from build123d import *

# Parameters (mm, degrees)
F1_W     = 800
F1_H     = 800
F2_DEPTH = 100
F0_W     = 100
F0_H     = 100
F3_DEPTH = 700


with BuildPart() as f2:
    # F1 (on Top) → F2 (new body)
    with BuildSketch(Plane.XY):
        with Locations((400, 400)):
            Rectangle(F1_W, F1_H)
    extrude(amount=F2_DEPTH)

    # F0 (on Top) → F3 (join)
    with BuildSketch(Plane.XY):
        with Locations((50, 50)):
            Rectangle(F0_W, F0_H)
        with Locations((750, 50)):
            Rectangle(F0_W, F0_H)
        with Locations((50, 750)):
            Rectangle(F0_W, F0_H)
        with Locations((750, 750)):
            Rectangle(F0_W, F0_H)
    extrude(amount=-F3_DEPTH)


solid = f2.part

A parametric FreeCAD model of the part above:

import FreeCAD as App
import Part
import Sketcher

V = App.Vector

doc = App.newDocument("Part")
body = doc.addObject("PartDesign::Body", "Body")

# Sketch on XY plane
sketch1 = body.newObject("Sketcher::SketchObject", "Sketch")
sketch1.AttachmentSupport = (doc.getObject("XY_Plane"), [""])
sketch1.MapMode = "FlatFace"
sketch1.addGeometry(Part.LineSegment(V(0, 800, 0), V(0, 0, 0)), False)
sketch1.addGeometry(Part.LineSegment(V(0, 0, 0), V(800, 0, 0)), False)
sketch1.addGeometry(Part.LineSegment(V(800, 0, 0), V(800, 800, 0)), False)
sketch1.addGeometry(Part.LineSegment(V(800, 800, 0), V(0, 800, 0)), False)
sketch1.addConstraint(Sketcher.Constraint("Coincident", 0, 2, 1, 1))
sketch1.addConstraint(Sketcher.Constraint("Coincident", 1, 2, 2, 1))
sketch1.addConstraint(Sketcher.Constraint("Coincident", 2, 2, 3, 1))
sketch1.addConstraint(Sketcher.Constraint("Coincident", 3, 2, 0, 1))
sketch1.addConstraint(Sketcher.Constraint("Vertical", 0))
sketch1.addConstraint(Sketcher.Constraint("Horizontal", 1))
sketch1.addConstraint(Sketcher.Constraint("Vertical", 2))
sketch1.addConstraint(Sketcher.Constraint("Horizontal", 3))
sketch1.addConstraint(Sketcher.Constraint("Coincident", 0, 2, -1, 1))
sketch1.addConstraint(Sketcher.Constraint("Equal", 3, 0))
sketch1.addConstraint(Sketcher.Constraint("DistanceX", 1, 1, 1, 2, 800.0))
pad1 = body.newObject("PartDesign::Pad", "Pad")
pad1.Profile = sketch1
pad1.Length = 100

# Sketch on XY plane
sketch2 = body.newObject("Sketcher::SketchObject", "Sketch001")
sketch2.AttachmentSupport = (doc.getObject("XY_Plane"), [""])
sketch2.MapMode = "FlatFace"
sketch2.addGeometry(Part.LineSegment(V(0, 100, 0), V(0, 0, 0)), False)
sketch2.addGeometry(Part.LineSegment(V(0, 0, 0), V(100, 0, 0)), False)
sketch2.addGeometry(Part.LineSegment(V(100, 0, 0), V(100, 100, 0)), False)
sketch2.addGeometry(Part.LineSegment(V(100, 100, 0), V(0, 100, 0)), False)
sketch2.addGeometry(Part.LineSegment(V(700, 100, 0), V(700, 0, 0)), False)
sketch2.addGeometry(Part.LineSegment(V(700, 0, 0), V(800, 0, 0)), False)
sketch2.addGeometry(Part.LineSegment(V(800, 0, 0), V(800, 100, 0)), False)
sketch2.addGeometry(Part.LineSegment(V(800, 100, 0), V(700, 100, 0)), False)
sketch2.addGeometry(Part.LineSegment(V(0, 800, 0), V(0, 700, 0)), False)
sketch2.addGeometry(Part.LineSegment(V(0, 700, 0), V(100, 700, 0)), False)
sketch2.addGeometry(Part.LineSegment(V(100, 700, 0), V(100, 800, 0)), False)
sketch2.addGeometry(Part.LineSegment(V(100, 800, 0), V(0, 800, 0)), False)
sketch2.addGeometry(Part.LineSegment(V(700, 800, 0), V(700, 700, 0)), False)
sketch2.addGeometry(Part.LineSegment(V(700, 700, 0), V(800, 700, 0)), False)
sketch2.addGeometry(Part.LineSegment(V(800, 700, 0), V(800, 800, 0)), False)
sketch2.addGeometry(Part.LineSegment(V(800, 800, 0), V(700, 800, 0)), False)
sketch2.addConstraint(Sketcher.Constraint("Coincident", 0, 2, 1, 1))
sketch2.addConstraint(Sketcher.Constraint("Coincident", 1, 2, 2, 1))
sketch2.addConstraint(Sketcher.Constraint("Coincident", 2, 2, 3, 1))
sketch2.addConstraint(Sketcher.Constraint("Coincident", 3, 2, 0, 1))
sketch2.addConstraint(Sketcher.Constraint("Coincident", 4, 2, 5, 1))
sketch2.addConstraint(Sketcher.Constraint("Coincident", 5, 2, 6, 1))
sketch2.addConstraint(Sketcher.Constraint("Coincident", 6, 2, 7, 1))
sketch2.addConstraint(Sketcher.Constraint("Coincident", 7, 2, 4, 1))
sketch2.addConstraint(Sketcher.Constraint("Coincident", 8, 2, 9, 1))
sketch2.addConstraint(Sketcher.Constraint("Coincident", 9, 2, 10, 1))
sketch2.addConstraint(Sketcher.Constraint("Coincident", 10, 2, 11, 1))
sketch2.addConstraint(Sketcher.Constraint("Coincident", 11, 2, 8, 1))
sketch2.addConstraint(Sketcher.Constraint("Coincident", 12, 2, 13, 1))
sketch2.addConstraint(Sketcher.Constraint("Coincident", 13, 2, 14, 1))
sketch2.addConstraint(Sketcher.Constraint("Coincident", 14, 2, 15, 1))
sketch2.addConstraint(Sketcher.Constraint("Coincident", 15, 2, 12, 1))
sketch2.addConstraint(Sketcher.Constraint("Vertical", 0))
sketch2.addConstraint(Sketcher.Constraint("Horizontal", 1))
sketch2.addConstraint(Sketcher.Constraint("Vertical", 2))
sketch2.addConstraint(Sketcher.Constraint("Horizontal", 3))
sketch2.addConstraint(Sketcher.Constraint("Vertical", 4))
sketch2.addConstraint(Sketcher.Constraint("Horizontal", 5))
sketch2.addConstraint(Sketcher.Constraint("Vertical", 6))
sketch2.addConstraint(Sketcher.Constraint("Horizontal", 7))
sketch2.addConstraint(Sketcher.Constraint("Vertical", 8))
sketch2.addConstraint(Sketcher.Constraint("Horizontal", 9))
sketch2.addConstraint(Sketcher.Constraint("Vertical", 10))
sketch2.addConstraint(Sketcher.Constraint("Horizontal", 11))
sketch2.addConstraint(Sketcher.Constraint("Vertical", 12))
sketch2.addConstraint(Sketcher.Constraint("Horizontal", 13))
sketch2.addConstraint(Sketcher.Constraint("Vertical", 14))
sketch2.addConstraint(Sketcher.Constraint("Horizontal", 15))
sketch2.addConstraint(Sketcher.Constraint("Coincident", 0, 2, -1, 1))
sketch2.addConstraint(Sketcher.Constraint("PointOnObject", 4, 2, -1))
sketch2.addConstraint(Sketcher.Constraint("PointOnObject", 8, 2, -2))
sketch2.addConstraint(Sketcher.Constraint("Horizontal", 3, 2, 6, 2))
sketch2.addConstraint(Sketcher.Constraint("Horizontal", 9, 2, 12, 2))
sketch2.addConstraint(Sketcher.Constraint("Horizontal", 11, 2, 14, 2))
sketch2.addConstraint(Sketcher.Constraint("Vertical", 2, 2, 9, 2))
sketch2.addConstraint(Sketcher.Constraint("Vertical", 7, 2, 12, 2))
sketch2.addConstraint(Sketcher.Constraint("Vertical", 6, 2, 13, 2))
sketch2.addConstraint(Sketcher.Constraint("Equal", 3, 5))
sketch2.addConstraint(Sketcher.Constraint("Equal", 15, 0))
sketch2.addConstraint(Sketcher.Constraint("Equal", 6, 8))
sketch2.addConstraint(Sketcher.Constraint("DistanceX", 1, 1, 1, 2, 100.0))
sketch2.addConstraint(Sketcher.Constraint("DistanceX", -1, 1, 4, 2, 700.0))
sketch2.addConstraint(Sketcher.Constraint("DistanceY", -1, 1, 8, 2, 700.0))
pad2 = body.newObject("PartDesign::Pad", "Pad001")
pad2.Profile = sketch2
pad2.Length = 700
pad2.Reversed = True

doc.recompute()
